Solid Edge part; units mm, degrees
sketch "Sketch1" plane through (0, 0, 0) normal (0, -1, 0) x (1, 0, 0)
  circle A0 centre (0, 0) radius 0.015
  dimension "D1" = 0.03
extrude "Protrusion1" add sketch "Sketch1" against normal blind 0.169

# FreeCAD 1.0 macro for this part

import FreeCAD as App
import Part
import Sketcher

V = App.Vector

doc = App.newDocument("Part")
params = doc.addObject("Spreadsheet::Sheet", "Params")
for row, (alias, value) in enumerate([
    ("sketch1_diameter", "0.03 mm"),
    ("pad1_length", "0.169 mm"),
], start=1):
    params.set(f"A{row}", alias)
    params.set(f"B{row}", "=" + value)
    params.setAlias(f"B{row}", alias)

body = doc.addObject("PartDesign::Body", "Body")

# Sketch on XZ plane
sketch1 = body.newObject("Sketcher::SketchObject", "Sketch")
sketch1.AttachmentSupport = (doc.getObject("XZ_Plane"), [""])
sketch1.MapMode = "FlatFace"
sketch1.addGeometry(Part.Circle(V(0, 0, 0), V(0, 0, 1), 0.015), False)
sketch1.addConstraint(Sketcher.Constraint("Coincident", 0, 3, -1, 1))
sketch1.addConstraint(Sketcher.Constraint("Diameter", 0, 0.03))
sketch1.setExpression("Constraints[1]", "Params.sketch1_diameter")
pad1 = body.newObject("PartDesign::Pad", "Pad")
pad1.Profile = sketch1
pad1.setExpression("Length", "Params.pad1_length")
pad1.Reversed = True

doc.recompute()
